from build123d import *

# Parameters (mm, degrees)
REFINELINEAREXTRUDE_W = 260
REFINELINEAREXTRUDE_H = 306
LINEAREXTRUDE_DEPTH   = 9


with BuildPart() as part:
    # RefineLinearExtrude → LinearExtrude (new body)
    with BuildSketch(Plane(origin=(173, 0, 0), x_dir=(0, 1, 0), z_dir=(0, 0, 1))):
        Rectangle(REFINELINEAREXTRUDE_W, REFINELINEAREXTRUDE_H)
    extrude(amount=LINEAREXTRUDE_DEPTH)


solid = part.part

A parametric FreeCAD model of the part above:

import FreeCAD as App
import Part
import Sketcher
from FreeCAD import Vector


def add_polygon(sketch, points):
    """Adds a closed chain of lines whose ends are joined by coincident constraints."""
    first, n = sketch.GeometryCount, len(points)
    for a, b in zip(points, points[1:] + points[:1]):
        sketch.addGeometry(Part.LineSegment(App.Vector(*a, 0), App.Vector(*b, 0)), False)
    for i in range(n):
        sketch.addConstraint(Sketcher.Constraint("Coincident", first + i, 2, first + (i + 1) % n, 1))

doc = App.newDocument("Part")
params = doc.addObject("Spreadsheet::Sheet", "Params")
for row, (alias, value) in enumerate([
    ("sketch1_width", "306 mm"),
    ("sketch1_height", "260 mm"),
    ("pad1_length", "9 mm"),
], start=1):
    params.set(f"A{row}", alias)
    params.set(f"B{row}", "=" + value)
    params.setAlias(f"B{row}", alias)

body = doc.addObject("PartDesign::Body", "Body")

sketch1 = doc.addObject("Sketcher::SketchObject", "Sketch")
body.addObject(sketch1)
sketch1.AttachmentSupport = (doc.XY_Plane, [""])
sketch1.MapMode = "FlatFace"
add_polygon(sketch1, [(20, -130), (326, -130), (326, 130), (20, 130)])
sketch1.addConstraint([
    Sketcher.Constraint("Horizontal", 0),
    Sketcher.Constraint("Vertical", 1),
    Sketcher.Constraint("Horizontal", 2),
    Sketcher.Constraint("Vertical", 3),
    Sketcher.Constraint("DistanceX", 0, 1, 0, 2, 306.0),
    Sketcher.Constraint("DistanceY", 1, 1, 1, 2, 260.0),
    Sketcher.Constraint("DistanceX", -1, 1, 0, 2, 326.0),
    Sketcher.Constraint("DistanceY", 0, 2, -1, 1, 130.0),
])
sketch1.setExpression("Constraints[8]", "Params.sketch1_width")
sketch1.setExpression("Constraints[9]", "Params.sketch1_height")
pad1 = doc.addObject("PartDesign::Pad", "Pad")
body.addObject(pad1)
pad1.Profile = sketch1
pad1.setExpression("Length", "Params.pad1_length")

doc.recompute()
